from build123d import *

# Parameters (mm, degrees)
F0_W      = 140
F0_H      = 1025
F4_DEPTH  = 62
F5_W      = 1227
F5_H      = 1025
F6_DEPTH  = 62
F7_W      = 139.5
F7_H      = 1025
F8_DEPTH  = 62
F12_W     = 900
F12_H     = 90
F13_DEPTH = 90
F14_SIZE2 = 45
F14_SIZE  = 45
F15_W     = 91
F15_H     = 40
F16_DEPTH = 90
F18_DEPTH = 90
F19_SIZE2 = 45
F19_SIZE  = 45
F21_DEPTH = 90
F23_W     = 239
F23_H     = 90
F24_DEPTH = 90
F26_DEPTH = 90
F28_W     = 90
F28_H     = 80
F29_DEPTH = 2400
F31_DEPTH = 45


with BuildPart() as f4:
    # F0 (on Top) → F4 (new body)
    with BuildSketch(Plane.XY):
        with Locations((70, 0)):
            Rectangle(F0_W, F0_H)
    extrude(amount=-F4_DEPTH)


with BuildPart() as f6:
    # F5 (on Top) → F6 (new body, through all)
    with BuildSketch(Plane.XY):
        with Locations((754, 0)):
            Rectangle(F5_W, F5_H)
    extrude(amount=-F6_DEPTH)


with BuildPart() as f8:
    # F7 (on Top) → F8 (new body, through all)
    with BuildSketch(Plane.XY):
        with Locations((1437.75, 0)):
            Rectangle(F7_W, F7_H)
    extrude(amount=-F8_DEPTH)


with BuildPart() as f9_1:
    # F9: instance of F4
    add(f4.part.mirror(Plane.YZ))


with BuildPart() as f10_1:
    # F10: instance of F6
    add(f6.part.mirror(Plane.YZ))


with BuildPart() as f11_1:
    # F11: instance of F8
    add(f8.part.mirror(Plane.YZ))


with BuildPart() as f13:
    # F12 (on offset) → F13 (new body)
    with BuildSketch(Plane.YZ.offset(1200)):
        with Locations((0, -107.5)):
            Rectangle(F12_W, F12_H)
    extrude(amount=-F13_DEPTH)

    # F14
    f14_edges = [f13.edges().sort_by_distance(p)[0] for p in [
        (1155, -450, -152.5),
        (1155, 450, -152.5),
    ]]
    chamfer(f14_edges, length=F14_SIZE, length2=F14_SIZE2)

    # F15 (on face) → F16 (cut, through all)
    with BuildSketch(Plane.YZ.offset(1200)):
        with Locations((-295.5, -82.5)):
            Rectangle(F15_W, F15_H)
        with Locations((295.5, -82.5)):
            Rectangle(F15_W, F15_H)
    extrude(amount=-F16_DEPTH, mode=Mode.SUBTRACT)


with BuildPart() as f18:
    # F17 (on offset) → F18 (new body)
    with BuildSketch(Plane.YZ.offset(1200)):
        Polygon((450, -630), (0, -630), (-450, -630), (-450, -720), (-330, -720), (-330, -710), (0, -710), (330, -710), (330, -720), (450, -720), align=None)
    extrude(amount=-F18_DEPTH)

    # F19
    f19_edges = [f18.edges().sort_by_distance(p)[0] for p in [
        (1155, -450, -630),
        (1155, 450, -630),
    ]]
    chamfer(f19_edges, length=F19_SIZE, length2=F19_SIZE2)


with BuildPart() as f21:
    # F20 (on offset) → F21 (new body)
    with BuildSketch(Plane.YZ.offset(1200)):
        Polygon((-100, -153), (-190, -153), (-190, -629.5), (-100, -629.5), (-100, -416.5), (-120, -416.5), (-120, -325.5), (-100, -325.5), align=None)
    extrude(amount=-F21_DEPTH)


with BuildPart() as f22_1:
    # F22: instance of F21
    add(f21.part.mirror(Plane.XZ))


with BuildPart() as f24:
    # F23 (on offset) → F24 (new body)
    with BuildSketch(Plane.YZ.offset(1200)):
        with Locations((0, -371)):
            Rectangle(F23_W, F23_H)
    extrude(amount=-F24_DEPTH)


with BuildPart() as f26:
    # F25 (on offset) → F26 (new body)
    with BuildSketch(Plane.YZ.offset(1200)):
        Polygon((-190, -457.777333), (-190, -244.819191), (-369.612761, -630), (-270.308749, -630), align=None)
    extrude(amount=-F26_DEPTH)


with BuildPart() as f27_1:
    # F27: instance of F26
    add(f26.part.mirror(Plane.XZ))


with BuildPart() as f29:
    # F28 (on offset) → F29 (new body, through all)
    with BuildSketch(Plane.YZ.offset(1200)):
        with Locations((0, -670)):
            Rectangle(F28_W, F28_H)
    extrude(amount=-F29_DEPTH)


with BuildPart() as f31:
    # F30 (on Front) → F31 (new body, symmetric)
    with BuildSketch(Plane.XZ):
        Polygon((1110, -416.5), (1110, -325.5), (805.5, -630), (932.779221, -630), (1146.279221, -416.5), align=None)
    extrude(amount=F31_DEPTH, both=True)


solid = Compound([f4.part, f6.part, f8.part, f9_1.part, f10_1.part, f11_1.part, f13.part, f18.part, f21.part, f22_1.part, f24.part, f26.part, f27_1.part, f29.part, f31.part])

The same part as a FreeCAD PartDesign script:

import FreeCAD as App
import Part
import Sketcher
Q = App.Units.Quantity


def edges_at(feature, points):
    """Names of the edges that pass closest to the given points."""
    edges = feature.Shape.Edges
    near = lambda p: min(range(len(edges)), key=lambda i: edges[i].distToShape(Part.Vertex(*p))[0])
    return sorted({f"Edge{near(p) + 1}" for p in points})

doc = App.newDocument("Part")
body = doc.addObject("PartDesign::Body", "Body")

# Sketch on XY plane
sketch1 = doc.addObject("Sketcher::SketchObject", "Sketch")
body.addObject(sketch1)
sketch1.AttachmentSupport = (doc.XY_Plane, [""])
sketch1.MapMode = "FlatFace"
sketch1.addGeometry([
    Part.LineSegment(App.Vector(0, 512.5, 0), App.Vector(0, -512.5, 0)),
    Part.LineSegment(App.Vector(0, -512.5, 0), App.Vector(140, -512.5, 0)),
    Part.LineSegment(App.Vector(140, -512.5, 0), App.Vector(140, 512.5, 0)),
    Part.LineSegment(App.Vector(140, 512.5, 0), App.Vector(0, 512.5, 0)),
], False)
sketch1.addConstraint([
    Sketcher.Constraint("Coincident", 0, 2, 1, 1),
    Sketcher.Constraint("Coincident", 1, 2, 2, 1),
    Sketcher.Constraint("Coincident", 2, 2, 3, 1),
    Sketcher.Constraint("Coincident", 3, 2, 0, 1),
    Sketcher.Constraint("Vertical", 0),
    Sketcher.Constraint("Horizontal", 1),
    Sketcher.Constraint("Vertical", 2),
    Sketcher.Constraint("Horizontal", 3),
    Sketcher.Constraint("Symmetric", 0, 2, 3, 2, -1, 1),
    Sketcher.Constraint("DistanceX", 1, 1, 1, 2, Q("140 mm")),
    Sketcher.Constraint("DistanceY", 0, 2, 0, 1, Q("1025 mm")),
])
pad1 = doc.addObject("PartDesign::Pad", "Pad")
body.addObject(pad1)
pad1.Profile = sketch1
pad1.Length = 62
pad1.Reversed = True
body2 = doc.addObject("PartDesign::Body", "Body001")

# Sketch on XY plane
sketch2 = doc.addObject("Sketcher::SketchObject", "Sketch001")
body2.addObject(sketch2)
sketch2.AttachmentSupport = (doc.getObject("XY_Plane001"), [""])
sketch2.MapMode = "FlatFace"
sketch2.addGeometry([
    Part.LineSegment(App.Vector(140.5, 512.5, 0), App.Vector(140.5, -512.5, 0)),
    Part.LineSegment(App.Vector(140.5, -512.5, 0), App.Vector(1367.5, -512.5, 0)),
    Part.LineSegment(App.Vector(1367.5, -512.5, 0), App.Vector(1367.5, 512.5, 0)),
    Part.LineSegment(App.Vector(1367.5, 512.5, 0), App.Vector(140.5, 512.5, 0)),
], False)
sketch2.addConstraint([
    Sketcher.Constraint("Coincident", 0, 2, 1, 1),
    Sketcher.Constraint("Coincident", 1, 2, 2, 1),
    Sketcher.Constraint("Coincident", 2, 2, 3, 1),
    Sketcher.Constraint("Coincident", 3, 2, 0, 1),
    Sketcher.Constraint("Vertical", 0),
    Sketcher.Constraint("Horizontal", 1),
    Sketcher.Constraint("Vertical", 2),
    Sketcher.Constraint("Horizontal", 3),
    Sketcher.Constraint("DistanceX", 1, 1, 1, 2, Q("1227 mm")),
    Sketcher.Constraint("DistanceY", 0, 2, 0, 1, Q("1025 mm")),
    Sketcher.Constraint("DistanceX", -1, 1, 0, 2, Q("140.5 mm")),
    Sketcher.Constraint("DistanceY", 0, 2, -1, 1, Q("512.5 mm")),
])
pad2 = doc.addObject("PartDesign::Pad", "Pad001")
body2.addObject(pad2)
pad2.Profile = sketch2
pad2.Length = 62
pad2.Reversed = True
body3 = doc.addObject("PartDesign::Body", "Body002")

# Sketch on XY plane
sketch3 = doc.addObject("Sketcher::SketchObject", "Sketch002")
body3.addObject(sketch3)
sketch3.AttachmentSupport = (doc.getObject("XY_Plane002"), [""])
sketch3.MapMode = "FlatFace"
sketch3.addGeometry([
    Part.LineSegment(App.Vector(1368, 512.5, 0), App.Vector(1368, -512.5, 0)),
    Part.LineSegment(App.Vector(1368, -512.5, 0), App.Vector(1507.5, -512.5, 0)),
    Part.LineSegment(App.Vector(1507.5, -512.5, 0), App.Vector(1507.5, 512.5, 0)),
    Part.LineSegment(App.Vector(1507.5, 512.5, 0), App.Vector(1368, 512.5, 0)),
], False)
sketch3.addConstraint([
    Sketcher.Constraint("Coincident", 0, 2, 1, 1),
    Sketcher.Constraint("Coincident", 1, 2, 2, 1),
    Sketcher.Constraint("Coincident", 2, 2, 3, 1),
    Sketcher.Constraint("Coincident", 3, 2, 0, 1),
    Sketcher.Constraint("Vertical", 0),
    Sketcher.Constraint("Horizontal", 1),
    Sketcher.Constraint("Vertical", 2),
    Sketcher.Constraint("Horizontal", 3),
    Sketcher.Constraint("DistanceY", 0, 2, 0, 1, Q("1025 mm")),
    Sketcher.Constraint("DistanceX", 1, 1, 1, 2, Q("139.5 mm")),
    Sketcher.Constraint("DistanceX", -1, 1, 0, 2, Q("1368 mm")),
    Sketcher.Constraint("DistanceY", 0, 2, -1, 1, Q("512.5 mm")),
])
pad3 = doc.addObject("PartDesign::Pad", "Pad002")
body3.addObject(pad3)
pad3.Profile = sketch3
pad3.Length = 62
pad3.Reversed = True
body4 = doc.addObject("PartDesign::Body", "Body003")
doc.recompute()

mirroring = doc.addObject("Part::Mirroring", "Mirroring")
mirroring.Source = body
mirroring.Base = App.Vector(0, 0, 0)
mirroring.Normal = App.Vector(1, 0, 0)
body4.BaseFeature = mirroring
doc.recompute()
body5 = doc.addObject("PartDesign::Body", "Body004")
doc.recompute()

mirroring2 = doc.addObject("Part::Mirroring", "Mirroring001")
mirroring2.Source = body2
mirroring2.Base = App.Vector(0, 0, 0)
mirroring2.Normal = App.Vector(1, 0, 0)
body5.BaseFeature = mirroring2
doc.recompute()
body6 = doc.addObject("PartDesign::Body", "Body005")
doc.recompute()

mirroring3 = doc.addObject("Part::Mirroring", "Mirroring002")
mirroring3.Source = body3
mirroring3.Base = App.Vector(0, 0, 0)
mirroring3.Normal = App.Vector(1, 0, 0)
body6.BaseFeature = mirroring3
doc.recompute()
body7 = doc.addObject("PartDesign::Body", "Body006")

# Sketch on YZ plane
sketch4 = doc.addObject("Sketcher::SketchObject", "Sketch003")
body7.addObject(sketch4)
sketch4.AttachmentSupport = (doc.getObject("YZ_Plane006"), [""])
sketch4.MapMode = "FlatFace"
sketch4.AttachmentOffset = App.Placement(App.Vector(0, 0, 1200), App.Rotation())
sketch4.addGeometry([
    Part.LineSegment(App.Vector(-450, -62.5, 0), App.Vector(-450, -152.5, 0)),
    Part.LineSegment(App.Vector(-450, -152.5, 0), App.Vector(450, -152.5, 0)),
    Part.LineSegment(App.Vector(450, -152.5, 0), App.Vector(450, -62.5, 0)),
    Part.LineSegment(App.Vector(450, -62.5, 0), App.Vector(-450, -62.5, 0)),
], False)
sketch4.addConstraint([
    Sketcher.Constraint("Coincident", 0, 2, 1, 1),
    Sketcher.Constraint("Coincident", 1, 2, 2, 1),
    Sketcher.Constraint("Coincident", 2, 2, 3, 1),
    Sketcher.Constraint("Coincident", 3, 2, 0, 1),
    Sketcher.Constraint("Vertical", 0),
    Sketcher.Constraint("Horizontal", 1),
    Sketcher.Constraint("Vertical", 2),
    Sketcher.Constraint("Horizontal", 3),
    Sketcher.Constraint("DistanceX", 1, 1, 1, 2, Q("900 mm")),
    Sketcher.Constraint("DistanceY", 0, 2, 0, 1, Q("90 mm")),
    Sketcher.Constraint("DistanceX", 0, 2, -1, 1, Q("450 mm")),
    Sketcher.Constraint("DistanceY", 0, 2, -1, 1, Q("152.5 mm")),
])
pad4 = doc.addObject("PartDesign::Pad", "Pad003")
body7.addObject(pad4)
pad4.Profile = sketch4
pad4.Length = 90
pad4.Reversed = True
doc.recompute()

chamfer = doc.addObject("PartDesign::Chamfer", "Chamfer")
body7.addObject(chamfer)
chamfer.Base = (pad4, edges_at(pad4, [(1155, -450, -152.5), (1155, 450, -152.5)]))
chamfer.ChamferType = "Two distances"
chamfer.Size = 45
chamfer.Size2 = 45

# Sketch on YZ plane
sketch5 = doc.addObject("Sketcher::SketchObject", "Sketch004")
body7.addObject(sketch5)
sketch5.AttachmentSupport = (doc.getObject("YZ_Plane006"), [""])
sketch5.MapMode = "FlatFace"
sketch5.AttachmentOffset = App.Placement(App.Vector(0, 0, 1200), App.Rotation())
sketch5.addGeometry([
    Part.LineSegment(App.Vector(-341, -62.5, 0), App.Vector(-341, -102.5, 0)),  # 0
    Part.LineSegment(App.Vector(-341, -102.5, 0), App.Vector(-250, -102.5, 0)),  # 1
    Part.LineSegment(App.Vector(-250, -102.5, 0), App.Vector(-250, -62.5, 0)),  # 2
    Part.LineSegment(App.Vector(-250, -62.5, 0), App.Vector(-341, -62.5, 0)),  # 3
    Part.LineSegment(App.Vector(250, -62.5, 0), App.Vector(250, -102.5, 0)),  # 4
    Part.LineSegment(App.Vector(250, -102.5, 0), App.Vector(341, -102.5, 0)),  # 5
    Part.LineSegment(App.Vector(341, -102.5, 0), App.Vector(341, -62.5, 0)),  # 6
    Part.LineSegment(App.Vector(341, -62.5, 0), App.Vector(250, -62.5, 0)),  # 7
], False)
sketch5.addConstraint([
    Sketcher.Constraint("Coincident", 0, 2, 1, 1),
    Sketcher.Constraint("Coincident", 1, 2, 2, 1),
    Sketcher.Constraint("Coincident", 2, 2, 3, 1),
    Sketcher.Constraint("Coincident", 3, 2, 0, 1),
    Sketcher.Constraint("Coincident", 4, 2, 5, 1),
    Sketcher.Constraint("Coincident", 5, 2, 6, 1),
    Sketcher.Constraint("Coincident", 6, 2, 7, 1),
    Sketcher.Constraint("Coincident", 7, 2, 4, 1),
    Sketcher.Constraint("Vertical", 0),
    Sketcher.Constraint("Horizontal", 1),
    Sketcher.Constraint("Vertical", 2),
    Sketcher.Constraint("Horizontal", 3),
    Sketcher.Constraint("Vertical", 4),
    Sketcher.Constraint("Horizontal", 5),
    Sketcher.Constraint("Vertical", 6),
    Sketcher.Constraint("Horizontal", 7),
    Sketcher.Constraint("Symmetric", 1, 2, 4, 2, -2),
    Sketcher.Constraint("Symmetric", 3, 2, 6, 2, -2),
    Sketcher.Constraint("DistanceX", 1, 1, 1, 2, Q("91 mm")),
    Sketcher.Constraint("DistanceY", 0, 2, 0, 1, Q("40 mm")),
    Sketcher.Constraint("DistanceX", 0, 2, -1, 1, Q("341 mm")),
    Sketcher.Constraint("DistanceY", 0, 2, -1, 1, Q("102.5 mm")),
])
pocket1 = doc.addObject("PartDesign::Pocket", "Pocket")
body7.addObject(pocket1)
pocket1.Profile = sketch5
pocket1.Type = "ThroughAll"
body8 = doc.addObject("PartDesign::Body", "Body007")

# Sketch on YZ plane
sketch6 = doc.addObject("Sketcher::SketchObject", "Sketch005")
body8.addObject(sketch6)
sketch6.AttachmentSupport = (doc.getObject("YZ_Plane007"), [""])
sketch6.MapMode = "FlatFace"
sketch6.AttachmentOffset = App.Placement(App.Vector(0, 0, 1200), App.Rotation())
sketch6.addGeometry([
    Part.LineSegment(App.Vector(450, -630, 0), App.Vector(-450, -630, 0)),  # 0
    Part.LineSegment(App.Vector(-450, -630, 0), App.Vector(-450, -720, 0)),  # 1
    Part.LineSegment(App.Vector(-450, -720, 0), App.Vector(-330, -720, 0)),  # 2
    Part.LineSegment(App.Vector(-330, -720, 0), App.Vector(-330, -710, 0)),  # 3
    Part.LineSegment(App.Vector(-330, -710, 0), App.Vector(330, -710, 0)),  # 4
    Part.LineSegment(App.Vector(330, -710, 0), App.Vector(330, -720, 0)),  # 5
    Part.LineSegment(App.Vector(330, -720, 0), App.Vector(450, -720, 0)),  # 6
    Part.LineSegment(App.Vector(450, -720, 0), App.Vector(450, -630, 0)),  # 7
], False)
sketch6.addConstraint([
    Sketcher.Constraint("Coincident", 0, 2, 1, 1),
    Sketcher.Constraint("Coincident", 1, 2, 2, 1),
    Sketcher.Constraint("Coincident", 2, 2, 3, 1),
    Sketcher.Constraint("Coincident", 3, 2, 4, 1),
    Sketcher.Constraint("Coincident", 4, 2, 5, 1),
    Sketcher.Constraint("Coincident", 5, 2, 6, 1),
    Sketcher.Constraint("Coincident", 6, 2, 7, 1),
    Sketcher.Constraint("Coincident", 7, 2, 0, 1),
    Sketcher.Constraint("Horizontal", 0),
    Sketcher.Constraint("Vertical", 1),
    Sketcher.Constraint("Horizontal", 2),
    Sketcher.Constraint("Vertical", 3),
    Sketcher.Constraint("Horizontal", 4),
    Sketcher.Constraint("Vertical", 5),
    Sketcher.Constraint("Horizontal", 6),
    Sketcher.Constraint("Vertical", 7),
    Sketcher.Constraint("Symmetric", 2, 2, 5, 2, -2),
    Sketcher.Constraint("Equal", 2, 6),
    Sketcher.Constraint("DistanceX", 0, 2, 0, 1, Q("900 mm")),
    Sketcher.Constraint("DistanceX", 2, 1, 2, 2, Q("120 mm")),
    Sketcher.Constraint("DistanceY", 1, 2, 1, 1, Q("90 mm")),
    Sketcher.Constraint("DistanceY", 3, 1, 3, 2, Q("10 mm")),
    Sketcher.Constraint("DistanceY", 0, 2, -1, 1, Q("630 mm")),
])
pad5 = doc.addObject("PartDesign::Pad", "Pad004")
body8.addObject(pad5)
pad5.Profile = sketch6
pad5.Length = 90
pad5.Reversed = True
doc.recompute()

chamfer2 = doc.addObject("PartDesign::Chamfer", "Chamfer001")
body8.addObject(chamfer2)
chamfer2.Base = (pad5, edges_at(pad5, [(1155, -450, -630), (1155, 450, -630)]))
chamfer2.ChamferType = "Two distances"
chamfer2.Size = 45
chamfer2.Size2 = 45
body9 = doc.addObject("PartDesign::Body", "Body008")

# Sketch on YZ plane
sketch7 = doc.addObject("Sketcher::SketchObject", "Sketch006")
body9.addObject(sketch7)
sketch7.AttachmentSupport = (doc.getObject("YZ_Plane008"), [""])
sketch7.MapMode = "FlatFace"
sketch7.AttachmentOffset = App.Placement(App.Vector(0, 0, 1200), App.Rotation())
sketch7.addGeometry([
    Part.LineSegment(App.Vector(-100, -153, 0), App.Vector(-190, -153, 0)),  # 0
    Part.LineSegment(App.Vector(-190, -153, 0), App.Vector(-190, -629.5, 0)),  # 1
    Part.LineSegment(App.Vector(-190, -629.5, 0), App.Vector(-100, -629.5, 0)),  # 2
    Part.LineSegment(App.Vector(-100, -629.5, 0), App.Vector(-100, -416.5, 0)),  # 3
    Part.LineSegment(App.Vector(-100, -416.5, 0), App.Vector(-120, -416.5, 0)),  # 4
    Part.LineSegment(App.Vector(-120, -416.5, 0), App.Vector(-120, -325.5, 0)),  # 5
    Part.LineSegment(App.Vector(-120, -325.5, 0), App.Vector(-100, -325.5, 0)),  # 6
    Part.LineSegment(App.Vector(-100, -325.5, 0), App.Vector(-100, -153, 0)),  # 7
], False)
sketch7.addConstraint([
    Sketcher.Constraint("Coincident", 0, 2, 1, 1),
    Sketcher.Constraint("Coincident", 1, 2, 2, 1),
    Sketcher.Constraint("Coincident", 2, 2, 3, 1),
    Sketcher.Constraint("Coincident", 3, 2, 4, 1),
    Sketcher.Constraint("Coincident", 4, 2, 5, 1),
    Sketcher.Constraint("Coincident", 5, 2, 6, 1),
    Sketcher.Constraint("Coincident", 6, 2, 7, 1),
    Sketcher.Constraint("Coincident", 7, 2, 0, 1),
    Sketcher.Constraint("Horizontal", 0),
    Sketcher.Constraint("Vertical", 1),
    Sketcher.Constraint("Horizontal", 2),
    Sketcher.Constraint("Vertical", 3),
    Sketcher.Constraint("Horizontal", 4),
    Sketcher.Constraint("Vertical", 5),
    Sketcher.Constraint("Horizontal", 6),
    Sketcher.Constraint("Vertical", 7),
    Sketcher.Constraint("Vertical", 3, 2, 6, 2),
    Sketcher.Constraint("DistanceX", 0, 2, 0, 1, Q("90 mm")),
    Sketcher.Constraint("DistanceX", 4, 2, 4, 1, Q("20 mm")),
    Sketcher.Constraint("DistanceY", 3, 1, 3, 2, Q("213 mm")),
    Sketcher.Constraint("DistanceY", 5, 1, 5, 2, Q("91 mm")),
    Sketcher.Constraint("DistanceY", 1, 2, 1, 1, Q("476.5 mm")),
    Sketcher.Constraint("DistanceX", 0, 2, -1, 1, Q("190 mm")),
    Sketcher.Constraint("DistanceY", 0, 2, -1, 1, Q("153 mm")),
])
pad6 = doc.addObject("PartDesign::Pad", "Pad005")
body9.addObject(pad6)
pad6.Profile = sketch7
pad6.Length = 90
pad6.Reversed = True
body10 = doc.addObject("PartDesign::Body", "Body009")
doc.recompute()

mirroring4 = doc.addObject("Part::Mirroring", "Mirroring003")
mirroring4.Source = body9
mirroring4.Base = App.Vector(0, 0, 0)
mirroring4.Normal = App.Vector(0, -1, 0)
body10.BaseFeature = mirroring4
doc.recompute()
body11 = doc.addObject("PartDesign::Body", "Body010")

# Sketch on YZ plane
sketch8 = doc.addObject("Sketcher::SketchObject", "Sketch007")
body11.addObject(sketch8)
sketch8.AttachmentSupport = (doc.getObject("YZ_Plane010"), [""])
sketch8.MapMode = "FlatFace"
sketch8.AttachmentOffset = App.Placement(App.Vector(0, 0, 1200), App.Rotation())
sketch8.addGeometry([
    Part.LineSegment(App.Vector(-119.5, -326, 0), App.Vector(-119.5, -416, 0)),
    Part.LineSegment(App.Vector(-119.5, -416, 0), App.Vector(119.5, -416, 0)),
    Part.LineSegment(App.Vector(119.5, -416, 0), App.Vector(119.5, -326, 0)),
    Part.LineSegment(App.Vector(119.5, -326, 0), App.Vector(-119.5, -326, 0)),
], False)
sketch8.addConstraint([
    Sketcher.Constraint("Coincident", 0, 2, 1, 1),
    Sketcher.Constraint("Coincident", 1, 2, 2, 1),
    Sketcher.Constraint("Coincident", 2, 2, 3, 1),
    Sketcher.Constraint("Coincident", 3, 2, 0, 1),
    Sketcher.Constraint("Vertical", 0),
    Sketcher.Constraint("Horizontal", 1),
    Sketcher.Constraint("Vertical", 2),
    Sketcher.Constraint("Horizontal", 3),
    Sketcher.Constraint("DistanceX", 1, 1, 1, 2, Q("239 mm")),
    Sketcher.Constraint("DistanceY", 0, 2, 0, 1, Q("90 mm")),
    Sketcher.Constraint("DistanceY", 0, 2, -1, 1, Q("416 mm")),
    Sketcher.Constraint("DistanceX", 0, 2, -1, 1, Q("119.5 mm")),
])
pad7 = doc.addObject("PartDesign::Pad", "Pad006")
body11.addObject(pad7)
pad7.Profile = sketch8
pad7.Length = 90
pad7.Reversed = True
body12 = doc.addObject("PartDesign::Body", "Body011")

# Sketch on YZ plane
sketch9 = doc.addObject("Sketcher::SketchObject", "Sketch008")
body12.addObject(sketch9)
sketch9.AttachmentSupport = (doc.getObject("YZ_Plane011"), [""])
sketch9.MapMode = "FlatFace"
sketch9.AttachmentOffset = App.Placement(App.Vector(0, 0, 1200), App.Rotation())
sketch9.addGeometry([
    Part.LineSegment(App.Vector(-190, -457.777333, 0), App.Vector(-190, -244.819191, 0)),
    Part.LineSegment(App.Vector(-190, -244.819191, 0), App.Vector(-369.612761, -630, 0)),
    Part.LineSegment(App.Vector(-369.612761, -630, 0), App.Vector(-270.308749, -630, 0)),
    Part.LineSegment(App.Vector(-270.308749, -630, 0), App.Vector(-190, -457.777333, 0)),
], False)
sketch9.addConstraint([
    Sketcher.Constraint("Coincident", 0, 2, 1, 1),
    Sketcher.Constraint("Coincident", 1, 2, 2, 1),
    Sketcher.Constraint("Coincident", 2, 2, 3, 1),
    Sketcher.Constraint("Coincident", 3, 2, 0, 1),
    Sketcher.Constraint("Vertical", 0),
    Sketcher.Constraint("Horizontal", 2),
    Sketcher.Constraint("Parallel", 1, 3),
    Sketcher.Constraint("Angle", 1, Q("-115 deg")),
    Sketcher.Constraint("Distance", 1, Q("424.999999 mm")),
    Sketcher.Constraint("DistanceX", 0, 2, -1, 1, Q("190 mm")),
    Sketcher.Constraint("DistanceY", 1, 2, -1, 1, Q("630 mm")),
    Sketcher.Constraint("DistanceX", 2, 1, 2, 2, Q("99.304012 mm")),
])
pad8 = doc.addObject("PartDesign::Pad", "Pad007")
body12.addObject(pad8)
pad8.Profile = sketch9
pad8.Length = 90
pad8.Reversed = True
body13 = doc.addObject("PartDesign::Body", "Body012")
doc.recompute()

mirroring5 = doc.addObject("Part::Mirroring", "Mirroring004")
mirroring5.Source = body12
mirroring5.Base = App.Vector(0, 0, 0)
mirroring5.Normal = App.Vector(0, -1, 0)
body13.BaseFeature = mirroring5
doc.recompute()
body14 = doc.addObject("PartDesign::Body", "Body013")

# Sketch on YZ plane
sketch10 = doc.addObject("Sketcher::SketchObject", "Sketch009")
body14.addObject(sketch10)
sketch10.AttachmentSupport = (doc.getObject("YZ_Plane013"), [""])
sketch10.MapMode = "FlatFace"
sketch10.AttachmentOffset = App.Placement(App.Vector(0, 0, 1200), App.Rotation())
sketch10.addGeometry([
    Part.LineSegment(App.Vector(-45, -630, 0), App.Vector(-45, -710, 0)),
    Part.LineSegment(App.Vector(-45, -710, 0), App.Vector(45, -710, 0)),
    Part.LineSegment(App.Vector(45, -710, 0), App.Vector(45, -630, 0)),
    Part.LineSegment(App.Vector(45, -630, 0), App.Vector(-45, -630, 0)),
], False)
sketch10.addConstraint([
    Sketcher.Constraint("Coincident", 0, 2, 1, 1),
    Sketcher.Constraint("Coincident", 1, 2, 2, 1),
    Sketcher.Constraint("Coincident", 2, 2, 3, 1),
    Sketcher.Constraint("Coincident", 3, 2, 0, 1),
    Sketcher.Constraint("Vertical", 0),
    Sketcher.Constraint("Horizontal", 1),
    Sketcher.Constraint("Vertical", 2),
    Sketcher.Constraint("Horizontal", 3),
    Sketcher.Constraint("DistanceX", 1, 1, 1, 2, Q("90 mm")),
    Sketcher.Constraint("DistanceY", 0, 2, 0, 1, Q("80 mm")),
    Sketcher.Constraint("DistanceX", 0, 2, -1, 1, Q("45 mm")),
    Sketcher.Constraint("DistanceY", 0, 2, -1, 1, Q("710 mm")),
])
pad9 = doc.addObject("PartDesign::Pad", "Pad008")
body14.addObject(pad9)
pad9.Profile = sketch10
pad9.Length = 2400
pad9.Reversed = True
body15 = doc.addObject("PartDesign::Body", "Body014")

# Sketch on XZ plane
sketch11 = doc.addObject("Sketcher::SketchObject", "Sketch010")
body15.addObject(sketch11)
sketch11.AttachmentSupport = (doc.getObject("XZ_Plane014"), [""])
sketch11.MapMode = "FlatFace"
sketch11.addGeometry([
    Part.LineSegment(App.Vector(1110, -416.5, 0), App.Vector(1110, -325.5, 0)),  # 0
    Part.LineSegment(App.Vector(1110, -325.5, 0), App.Vector(805.5, -630, 0)),  # 1
    Part.LineSegment(App.Vector(805.5, -630, 0), App.Vector(932.779221, -630, 0)),  # 2
    Part.LineSegment(App.Vector(932.779221, -630, 0), App.Vector(1146.279221, -416.5, 0)),  # 3
    Part.LineSegment(App.Vector(1146.279221, -416.5, 0), App.Vector(1110, -416.5, 0)),  # 4
], False)
sketch11.addConstraint([
    Sketcher.Constraint("Coincident", 0, 2, 1, 1),
    Sketcher.Constraint("Coincident", 1, 2, 2, 1),
    Sketcher.Constraint("Coincident", 2, 2, 3, 1),
    Sketcher.Constraint("Coincident", 3, 2, 4, 1),
    Sketcher.Constraint("Coincident", 4, 2, 0, 1),
    Sketcher.Constraint("Vertical", 0),
    Sketcher.Constraint("Horizontal", 2),
    Sketcher.Constraint("Horizontal", 4),
    Sketcher.Constraint("Parallel", 1, 3),
    Sketcher.Constraint("DistanceY", 0, 1, 0, 2, Q("91 mm")),
    Sketcher.Constraint("Angle", 1, Q("-135 deg")),
    Sketcher.Constraint("DistanceX", -1, 1, 0, 2, Q("1110 mm")),
    Sketcher.Constraint("DistanceY", 1, 2, -1, 1, Q("630 mm")),
    Sketcher.Constraint("DistanceY", 0, 2, -1, 1, Q("325.5 mm")),
    Sketcher.Constraint("DistanceX", 2, 1, 2, 2, Q("127.279221 mm")),
])
pad10 = doc.addObject("PartDesign::Pad", "Pad009")
body15.addObject(pad10)
pad10.Profile = sketch11
pad10.Length = 90
pad10.Midplane = True
mirroring.Visibility = False
mirroring2.Visibility = False
mirroring3.Visibility = False
mirroring4.Visibility = False
mirroring5.Visibility = False

doc.recompute()
